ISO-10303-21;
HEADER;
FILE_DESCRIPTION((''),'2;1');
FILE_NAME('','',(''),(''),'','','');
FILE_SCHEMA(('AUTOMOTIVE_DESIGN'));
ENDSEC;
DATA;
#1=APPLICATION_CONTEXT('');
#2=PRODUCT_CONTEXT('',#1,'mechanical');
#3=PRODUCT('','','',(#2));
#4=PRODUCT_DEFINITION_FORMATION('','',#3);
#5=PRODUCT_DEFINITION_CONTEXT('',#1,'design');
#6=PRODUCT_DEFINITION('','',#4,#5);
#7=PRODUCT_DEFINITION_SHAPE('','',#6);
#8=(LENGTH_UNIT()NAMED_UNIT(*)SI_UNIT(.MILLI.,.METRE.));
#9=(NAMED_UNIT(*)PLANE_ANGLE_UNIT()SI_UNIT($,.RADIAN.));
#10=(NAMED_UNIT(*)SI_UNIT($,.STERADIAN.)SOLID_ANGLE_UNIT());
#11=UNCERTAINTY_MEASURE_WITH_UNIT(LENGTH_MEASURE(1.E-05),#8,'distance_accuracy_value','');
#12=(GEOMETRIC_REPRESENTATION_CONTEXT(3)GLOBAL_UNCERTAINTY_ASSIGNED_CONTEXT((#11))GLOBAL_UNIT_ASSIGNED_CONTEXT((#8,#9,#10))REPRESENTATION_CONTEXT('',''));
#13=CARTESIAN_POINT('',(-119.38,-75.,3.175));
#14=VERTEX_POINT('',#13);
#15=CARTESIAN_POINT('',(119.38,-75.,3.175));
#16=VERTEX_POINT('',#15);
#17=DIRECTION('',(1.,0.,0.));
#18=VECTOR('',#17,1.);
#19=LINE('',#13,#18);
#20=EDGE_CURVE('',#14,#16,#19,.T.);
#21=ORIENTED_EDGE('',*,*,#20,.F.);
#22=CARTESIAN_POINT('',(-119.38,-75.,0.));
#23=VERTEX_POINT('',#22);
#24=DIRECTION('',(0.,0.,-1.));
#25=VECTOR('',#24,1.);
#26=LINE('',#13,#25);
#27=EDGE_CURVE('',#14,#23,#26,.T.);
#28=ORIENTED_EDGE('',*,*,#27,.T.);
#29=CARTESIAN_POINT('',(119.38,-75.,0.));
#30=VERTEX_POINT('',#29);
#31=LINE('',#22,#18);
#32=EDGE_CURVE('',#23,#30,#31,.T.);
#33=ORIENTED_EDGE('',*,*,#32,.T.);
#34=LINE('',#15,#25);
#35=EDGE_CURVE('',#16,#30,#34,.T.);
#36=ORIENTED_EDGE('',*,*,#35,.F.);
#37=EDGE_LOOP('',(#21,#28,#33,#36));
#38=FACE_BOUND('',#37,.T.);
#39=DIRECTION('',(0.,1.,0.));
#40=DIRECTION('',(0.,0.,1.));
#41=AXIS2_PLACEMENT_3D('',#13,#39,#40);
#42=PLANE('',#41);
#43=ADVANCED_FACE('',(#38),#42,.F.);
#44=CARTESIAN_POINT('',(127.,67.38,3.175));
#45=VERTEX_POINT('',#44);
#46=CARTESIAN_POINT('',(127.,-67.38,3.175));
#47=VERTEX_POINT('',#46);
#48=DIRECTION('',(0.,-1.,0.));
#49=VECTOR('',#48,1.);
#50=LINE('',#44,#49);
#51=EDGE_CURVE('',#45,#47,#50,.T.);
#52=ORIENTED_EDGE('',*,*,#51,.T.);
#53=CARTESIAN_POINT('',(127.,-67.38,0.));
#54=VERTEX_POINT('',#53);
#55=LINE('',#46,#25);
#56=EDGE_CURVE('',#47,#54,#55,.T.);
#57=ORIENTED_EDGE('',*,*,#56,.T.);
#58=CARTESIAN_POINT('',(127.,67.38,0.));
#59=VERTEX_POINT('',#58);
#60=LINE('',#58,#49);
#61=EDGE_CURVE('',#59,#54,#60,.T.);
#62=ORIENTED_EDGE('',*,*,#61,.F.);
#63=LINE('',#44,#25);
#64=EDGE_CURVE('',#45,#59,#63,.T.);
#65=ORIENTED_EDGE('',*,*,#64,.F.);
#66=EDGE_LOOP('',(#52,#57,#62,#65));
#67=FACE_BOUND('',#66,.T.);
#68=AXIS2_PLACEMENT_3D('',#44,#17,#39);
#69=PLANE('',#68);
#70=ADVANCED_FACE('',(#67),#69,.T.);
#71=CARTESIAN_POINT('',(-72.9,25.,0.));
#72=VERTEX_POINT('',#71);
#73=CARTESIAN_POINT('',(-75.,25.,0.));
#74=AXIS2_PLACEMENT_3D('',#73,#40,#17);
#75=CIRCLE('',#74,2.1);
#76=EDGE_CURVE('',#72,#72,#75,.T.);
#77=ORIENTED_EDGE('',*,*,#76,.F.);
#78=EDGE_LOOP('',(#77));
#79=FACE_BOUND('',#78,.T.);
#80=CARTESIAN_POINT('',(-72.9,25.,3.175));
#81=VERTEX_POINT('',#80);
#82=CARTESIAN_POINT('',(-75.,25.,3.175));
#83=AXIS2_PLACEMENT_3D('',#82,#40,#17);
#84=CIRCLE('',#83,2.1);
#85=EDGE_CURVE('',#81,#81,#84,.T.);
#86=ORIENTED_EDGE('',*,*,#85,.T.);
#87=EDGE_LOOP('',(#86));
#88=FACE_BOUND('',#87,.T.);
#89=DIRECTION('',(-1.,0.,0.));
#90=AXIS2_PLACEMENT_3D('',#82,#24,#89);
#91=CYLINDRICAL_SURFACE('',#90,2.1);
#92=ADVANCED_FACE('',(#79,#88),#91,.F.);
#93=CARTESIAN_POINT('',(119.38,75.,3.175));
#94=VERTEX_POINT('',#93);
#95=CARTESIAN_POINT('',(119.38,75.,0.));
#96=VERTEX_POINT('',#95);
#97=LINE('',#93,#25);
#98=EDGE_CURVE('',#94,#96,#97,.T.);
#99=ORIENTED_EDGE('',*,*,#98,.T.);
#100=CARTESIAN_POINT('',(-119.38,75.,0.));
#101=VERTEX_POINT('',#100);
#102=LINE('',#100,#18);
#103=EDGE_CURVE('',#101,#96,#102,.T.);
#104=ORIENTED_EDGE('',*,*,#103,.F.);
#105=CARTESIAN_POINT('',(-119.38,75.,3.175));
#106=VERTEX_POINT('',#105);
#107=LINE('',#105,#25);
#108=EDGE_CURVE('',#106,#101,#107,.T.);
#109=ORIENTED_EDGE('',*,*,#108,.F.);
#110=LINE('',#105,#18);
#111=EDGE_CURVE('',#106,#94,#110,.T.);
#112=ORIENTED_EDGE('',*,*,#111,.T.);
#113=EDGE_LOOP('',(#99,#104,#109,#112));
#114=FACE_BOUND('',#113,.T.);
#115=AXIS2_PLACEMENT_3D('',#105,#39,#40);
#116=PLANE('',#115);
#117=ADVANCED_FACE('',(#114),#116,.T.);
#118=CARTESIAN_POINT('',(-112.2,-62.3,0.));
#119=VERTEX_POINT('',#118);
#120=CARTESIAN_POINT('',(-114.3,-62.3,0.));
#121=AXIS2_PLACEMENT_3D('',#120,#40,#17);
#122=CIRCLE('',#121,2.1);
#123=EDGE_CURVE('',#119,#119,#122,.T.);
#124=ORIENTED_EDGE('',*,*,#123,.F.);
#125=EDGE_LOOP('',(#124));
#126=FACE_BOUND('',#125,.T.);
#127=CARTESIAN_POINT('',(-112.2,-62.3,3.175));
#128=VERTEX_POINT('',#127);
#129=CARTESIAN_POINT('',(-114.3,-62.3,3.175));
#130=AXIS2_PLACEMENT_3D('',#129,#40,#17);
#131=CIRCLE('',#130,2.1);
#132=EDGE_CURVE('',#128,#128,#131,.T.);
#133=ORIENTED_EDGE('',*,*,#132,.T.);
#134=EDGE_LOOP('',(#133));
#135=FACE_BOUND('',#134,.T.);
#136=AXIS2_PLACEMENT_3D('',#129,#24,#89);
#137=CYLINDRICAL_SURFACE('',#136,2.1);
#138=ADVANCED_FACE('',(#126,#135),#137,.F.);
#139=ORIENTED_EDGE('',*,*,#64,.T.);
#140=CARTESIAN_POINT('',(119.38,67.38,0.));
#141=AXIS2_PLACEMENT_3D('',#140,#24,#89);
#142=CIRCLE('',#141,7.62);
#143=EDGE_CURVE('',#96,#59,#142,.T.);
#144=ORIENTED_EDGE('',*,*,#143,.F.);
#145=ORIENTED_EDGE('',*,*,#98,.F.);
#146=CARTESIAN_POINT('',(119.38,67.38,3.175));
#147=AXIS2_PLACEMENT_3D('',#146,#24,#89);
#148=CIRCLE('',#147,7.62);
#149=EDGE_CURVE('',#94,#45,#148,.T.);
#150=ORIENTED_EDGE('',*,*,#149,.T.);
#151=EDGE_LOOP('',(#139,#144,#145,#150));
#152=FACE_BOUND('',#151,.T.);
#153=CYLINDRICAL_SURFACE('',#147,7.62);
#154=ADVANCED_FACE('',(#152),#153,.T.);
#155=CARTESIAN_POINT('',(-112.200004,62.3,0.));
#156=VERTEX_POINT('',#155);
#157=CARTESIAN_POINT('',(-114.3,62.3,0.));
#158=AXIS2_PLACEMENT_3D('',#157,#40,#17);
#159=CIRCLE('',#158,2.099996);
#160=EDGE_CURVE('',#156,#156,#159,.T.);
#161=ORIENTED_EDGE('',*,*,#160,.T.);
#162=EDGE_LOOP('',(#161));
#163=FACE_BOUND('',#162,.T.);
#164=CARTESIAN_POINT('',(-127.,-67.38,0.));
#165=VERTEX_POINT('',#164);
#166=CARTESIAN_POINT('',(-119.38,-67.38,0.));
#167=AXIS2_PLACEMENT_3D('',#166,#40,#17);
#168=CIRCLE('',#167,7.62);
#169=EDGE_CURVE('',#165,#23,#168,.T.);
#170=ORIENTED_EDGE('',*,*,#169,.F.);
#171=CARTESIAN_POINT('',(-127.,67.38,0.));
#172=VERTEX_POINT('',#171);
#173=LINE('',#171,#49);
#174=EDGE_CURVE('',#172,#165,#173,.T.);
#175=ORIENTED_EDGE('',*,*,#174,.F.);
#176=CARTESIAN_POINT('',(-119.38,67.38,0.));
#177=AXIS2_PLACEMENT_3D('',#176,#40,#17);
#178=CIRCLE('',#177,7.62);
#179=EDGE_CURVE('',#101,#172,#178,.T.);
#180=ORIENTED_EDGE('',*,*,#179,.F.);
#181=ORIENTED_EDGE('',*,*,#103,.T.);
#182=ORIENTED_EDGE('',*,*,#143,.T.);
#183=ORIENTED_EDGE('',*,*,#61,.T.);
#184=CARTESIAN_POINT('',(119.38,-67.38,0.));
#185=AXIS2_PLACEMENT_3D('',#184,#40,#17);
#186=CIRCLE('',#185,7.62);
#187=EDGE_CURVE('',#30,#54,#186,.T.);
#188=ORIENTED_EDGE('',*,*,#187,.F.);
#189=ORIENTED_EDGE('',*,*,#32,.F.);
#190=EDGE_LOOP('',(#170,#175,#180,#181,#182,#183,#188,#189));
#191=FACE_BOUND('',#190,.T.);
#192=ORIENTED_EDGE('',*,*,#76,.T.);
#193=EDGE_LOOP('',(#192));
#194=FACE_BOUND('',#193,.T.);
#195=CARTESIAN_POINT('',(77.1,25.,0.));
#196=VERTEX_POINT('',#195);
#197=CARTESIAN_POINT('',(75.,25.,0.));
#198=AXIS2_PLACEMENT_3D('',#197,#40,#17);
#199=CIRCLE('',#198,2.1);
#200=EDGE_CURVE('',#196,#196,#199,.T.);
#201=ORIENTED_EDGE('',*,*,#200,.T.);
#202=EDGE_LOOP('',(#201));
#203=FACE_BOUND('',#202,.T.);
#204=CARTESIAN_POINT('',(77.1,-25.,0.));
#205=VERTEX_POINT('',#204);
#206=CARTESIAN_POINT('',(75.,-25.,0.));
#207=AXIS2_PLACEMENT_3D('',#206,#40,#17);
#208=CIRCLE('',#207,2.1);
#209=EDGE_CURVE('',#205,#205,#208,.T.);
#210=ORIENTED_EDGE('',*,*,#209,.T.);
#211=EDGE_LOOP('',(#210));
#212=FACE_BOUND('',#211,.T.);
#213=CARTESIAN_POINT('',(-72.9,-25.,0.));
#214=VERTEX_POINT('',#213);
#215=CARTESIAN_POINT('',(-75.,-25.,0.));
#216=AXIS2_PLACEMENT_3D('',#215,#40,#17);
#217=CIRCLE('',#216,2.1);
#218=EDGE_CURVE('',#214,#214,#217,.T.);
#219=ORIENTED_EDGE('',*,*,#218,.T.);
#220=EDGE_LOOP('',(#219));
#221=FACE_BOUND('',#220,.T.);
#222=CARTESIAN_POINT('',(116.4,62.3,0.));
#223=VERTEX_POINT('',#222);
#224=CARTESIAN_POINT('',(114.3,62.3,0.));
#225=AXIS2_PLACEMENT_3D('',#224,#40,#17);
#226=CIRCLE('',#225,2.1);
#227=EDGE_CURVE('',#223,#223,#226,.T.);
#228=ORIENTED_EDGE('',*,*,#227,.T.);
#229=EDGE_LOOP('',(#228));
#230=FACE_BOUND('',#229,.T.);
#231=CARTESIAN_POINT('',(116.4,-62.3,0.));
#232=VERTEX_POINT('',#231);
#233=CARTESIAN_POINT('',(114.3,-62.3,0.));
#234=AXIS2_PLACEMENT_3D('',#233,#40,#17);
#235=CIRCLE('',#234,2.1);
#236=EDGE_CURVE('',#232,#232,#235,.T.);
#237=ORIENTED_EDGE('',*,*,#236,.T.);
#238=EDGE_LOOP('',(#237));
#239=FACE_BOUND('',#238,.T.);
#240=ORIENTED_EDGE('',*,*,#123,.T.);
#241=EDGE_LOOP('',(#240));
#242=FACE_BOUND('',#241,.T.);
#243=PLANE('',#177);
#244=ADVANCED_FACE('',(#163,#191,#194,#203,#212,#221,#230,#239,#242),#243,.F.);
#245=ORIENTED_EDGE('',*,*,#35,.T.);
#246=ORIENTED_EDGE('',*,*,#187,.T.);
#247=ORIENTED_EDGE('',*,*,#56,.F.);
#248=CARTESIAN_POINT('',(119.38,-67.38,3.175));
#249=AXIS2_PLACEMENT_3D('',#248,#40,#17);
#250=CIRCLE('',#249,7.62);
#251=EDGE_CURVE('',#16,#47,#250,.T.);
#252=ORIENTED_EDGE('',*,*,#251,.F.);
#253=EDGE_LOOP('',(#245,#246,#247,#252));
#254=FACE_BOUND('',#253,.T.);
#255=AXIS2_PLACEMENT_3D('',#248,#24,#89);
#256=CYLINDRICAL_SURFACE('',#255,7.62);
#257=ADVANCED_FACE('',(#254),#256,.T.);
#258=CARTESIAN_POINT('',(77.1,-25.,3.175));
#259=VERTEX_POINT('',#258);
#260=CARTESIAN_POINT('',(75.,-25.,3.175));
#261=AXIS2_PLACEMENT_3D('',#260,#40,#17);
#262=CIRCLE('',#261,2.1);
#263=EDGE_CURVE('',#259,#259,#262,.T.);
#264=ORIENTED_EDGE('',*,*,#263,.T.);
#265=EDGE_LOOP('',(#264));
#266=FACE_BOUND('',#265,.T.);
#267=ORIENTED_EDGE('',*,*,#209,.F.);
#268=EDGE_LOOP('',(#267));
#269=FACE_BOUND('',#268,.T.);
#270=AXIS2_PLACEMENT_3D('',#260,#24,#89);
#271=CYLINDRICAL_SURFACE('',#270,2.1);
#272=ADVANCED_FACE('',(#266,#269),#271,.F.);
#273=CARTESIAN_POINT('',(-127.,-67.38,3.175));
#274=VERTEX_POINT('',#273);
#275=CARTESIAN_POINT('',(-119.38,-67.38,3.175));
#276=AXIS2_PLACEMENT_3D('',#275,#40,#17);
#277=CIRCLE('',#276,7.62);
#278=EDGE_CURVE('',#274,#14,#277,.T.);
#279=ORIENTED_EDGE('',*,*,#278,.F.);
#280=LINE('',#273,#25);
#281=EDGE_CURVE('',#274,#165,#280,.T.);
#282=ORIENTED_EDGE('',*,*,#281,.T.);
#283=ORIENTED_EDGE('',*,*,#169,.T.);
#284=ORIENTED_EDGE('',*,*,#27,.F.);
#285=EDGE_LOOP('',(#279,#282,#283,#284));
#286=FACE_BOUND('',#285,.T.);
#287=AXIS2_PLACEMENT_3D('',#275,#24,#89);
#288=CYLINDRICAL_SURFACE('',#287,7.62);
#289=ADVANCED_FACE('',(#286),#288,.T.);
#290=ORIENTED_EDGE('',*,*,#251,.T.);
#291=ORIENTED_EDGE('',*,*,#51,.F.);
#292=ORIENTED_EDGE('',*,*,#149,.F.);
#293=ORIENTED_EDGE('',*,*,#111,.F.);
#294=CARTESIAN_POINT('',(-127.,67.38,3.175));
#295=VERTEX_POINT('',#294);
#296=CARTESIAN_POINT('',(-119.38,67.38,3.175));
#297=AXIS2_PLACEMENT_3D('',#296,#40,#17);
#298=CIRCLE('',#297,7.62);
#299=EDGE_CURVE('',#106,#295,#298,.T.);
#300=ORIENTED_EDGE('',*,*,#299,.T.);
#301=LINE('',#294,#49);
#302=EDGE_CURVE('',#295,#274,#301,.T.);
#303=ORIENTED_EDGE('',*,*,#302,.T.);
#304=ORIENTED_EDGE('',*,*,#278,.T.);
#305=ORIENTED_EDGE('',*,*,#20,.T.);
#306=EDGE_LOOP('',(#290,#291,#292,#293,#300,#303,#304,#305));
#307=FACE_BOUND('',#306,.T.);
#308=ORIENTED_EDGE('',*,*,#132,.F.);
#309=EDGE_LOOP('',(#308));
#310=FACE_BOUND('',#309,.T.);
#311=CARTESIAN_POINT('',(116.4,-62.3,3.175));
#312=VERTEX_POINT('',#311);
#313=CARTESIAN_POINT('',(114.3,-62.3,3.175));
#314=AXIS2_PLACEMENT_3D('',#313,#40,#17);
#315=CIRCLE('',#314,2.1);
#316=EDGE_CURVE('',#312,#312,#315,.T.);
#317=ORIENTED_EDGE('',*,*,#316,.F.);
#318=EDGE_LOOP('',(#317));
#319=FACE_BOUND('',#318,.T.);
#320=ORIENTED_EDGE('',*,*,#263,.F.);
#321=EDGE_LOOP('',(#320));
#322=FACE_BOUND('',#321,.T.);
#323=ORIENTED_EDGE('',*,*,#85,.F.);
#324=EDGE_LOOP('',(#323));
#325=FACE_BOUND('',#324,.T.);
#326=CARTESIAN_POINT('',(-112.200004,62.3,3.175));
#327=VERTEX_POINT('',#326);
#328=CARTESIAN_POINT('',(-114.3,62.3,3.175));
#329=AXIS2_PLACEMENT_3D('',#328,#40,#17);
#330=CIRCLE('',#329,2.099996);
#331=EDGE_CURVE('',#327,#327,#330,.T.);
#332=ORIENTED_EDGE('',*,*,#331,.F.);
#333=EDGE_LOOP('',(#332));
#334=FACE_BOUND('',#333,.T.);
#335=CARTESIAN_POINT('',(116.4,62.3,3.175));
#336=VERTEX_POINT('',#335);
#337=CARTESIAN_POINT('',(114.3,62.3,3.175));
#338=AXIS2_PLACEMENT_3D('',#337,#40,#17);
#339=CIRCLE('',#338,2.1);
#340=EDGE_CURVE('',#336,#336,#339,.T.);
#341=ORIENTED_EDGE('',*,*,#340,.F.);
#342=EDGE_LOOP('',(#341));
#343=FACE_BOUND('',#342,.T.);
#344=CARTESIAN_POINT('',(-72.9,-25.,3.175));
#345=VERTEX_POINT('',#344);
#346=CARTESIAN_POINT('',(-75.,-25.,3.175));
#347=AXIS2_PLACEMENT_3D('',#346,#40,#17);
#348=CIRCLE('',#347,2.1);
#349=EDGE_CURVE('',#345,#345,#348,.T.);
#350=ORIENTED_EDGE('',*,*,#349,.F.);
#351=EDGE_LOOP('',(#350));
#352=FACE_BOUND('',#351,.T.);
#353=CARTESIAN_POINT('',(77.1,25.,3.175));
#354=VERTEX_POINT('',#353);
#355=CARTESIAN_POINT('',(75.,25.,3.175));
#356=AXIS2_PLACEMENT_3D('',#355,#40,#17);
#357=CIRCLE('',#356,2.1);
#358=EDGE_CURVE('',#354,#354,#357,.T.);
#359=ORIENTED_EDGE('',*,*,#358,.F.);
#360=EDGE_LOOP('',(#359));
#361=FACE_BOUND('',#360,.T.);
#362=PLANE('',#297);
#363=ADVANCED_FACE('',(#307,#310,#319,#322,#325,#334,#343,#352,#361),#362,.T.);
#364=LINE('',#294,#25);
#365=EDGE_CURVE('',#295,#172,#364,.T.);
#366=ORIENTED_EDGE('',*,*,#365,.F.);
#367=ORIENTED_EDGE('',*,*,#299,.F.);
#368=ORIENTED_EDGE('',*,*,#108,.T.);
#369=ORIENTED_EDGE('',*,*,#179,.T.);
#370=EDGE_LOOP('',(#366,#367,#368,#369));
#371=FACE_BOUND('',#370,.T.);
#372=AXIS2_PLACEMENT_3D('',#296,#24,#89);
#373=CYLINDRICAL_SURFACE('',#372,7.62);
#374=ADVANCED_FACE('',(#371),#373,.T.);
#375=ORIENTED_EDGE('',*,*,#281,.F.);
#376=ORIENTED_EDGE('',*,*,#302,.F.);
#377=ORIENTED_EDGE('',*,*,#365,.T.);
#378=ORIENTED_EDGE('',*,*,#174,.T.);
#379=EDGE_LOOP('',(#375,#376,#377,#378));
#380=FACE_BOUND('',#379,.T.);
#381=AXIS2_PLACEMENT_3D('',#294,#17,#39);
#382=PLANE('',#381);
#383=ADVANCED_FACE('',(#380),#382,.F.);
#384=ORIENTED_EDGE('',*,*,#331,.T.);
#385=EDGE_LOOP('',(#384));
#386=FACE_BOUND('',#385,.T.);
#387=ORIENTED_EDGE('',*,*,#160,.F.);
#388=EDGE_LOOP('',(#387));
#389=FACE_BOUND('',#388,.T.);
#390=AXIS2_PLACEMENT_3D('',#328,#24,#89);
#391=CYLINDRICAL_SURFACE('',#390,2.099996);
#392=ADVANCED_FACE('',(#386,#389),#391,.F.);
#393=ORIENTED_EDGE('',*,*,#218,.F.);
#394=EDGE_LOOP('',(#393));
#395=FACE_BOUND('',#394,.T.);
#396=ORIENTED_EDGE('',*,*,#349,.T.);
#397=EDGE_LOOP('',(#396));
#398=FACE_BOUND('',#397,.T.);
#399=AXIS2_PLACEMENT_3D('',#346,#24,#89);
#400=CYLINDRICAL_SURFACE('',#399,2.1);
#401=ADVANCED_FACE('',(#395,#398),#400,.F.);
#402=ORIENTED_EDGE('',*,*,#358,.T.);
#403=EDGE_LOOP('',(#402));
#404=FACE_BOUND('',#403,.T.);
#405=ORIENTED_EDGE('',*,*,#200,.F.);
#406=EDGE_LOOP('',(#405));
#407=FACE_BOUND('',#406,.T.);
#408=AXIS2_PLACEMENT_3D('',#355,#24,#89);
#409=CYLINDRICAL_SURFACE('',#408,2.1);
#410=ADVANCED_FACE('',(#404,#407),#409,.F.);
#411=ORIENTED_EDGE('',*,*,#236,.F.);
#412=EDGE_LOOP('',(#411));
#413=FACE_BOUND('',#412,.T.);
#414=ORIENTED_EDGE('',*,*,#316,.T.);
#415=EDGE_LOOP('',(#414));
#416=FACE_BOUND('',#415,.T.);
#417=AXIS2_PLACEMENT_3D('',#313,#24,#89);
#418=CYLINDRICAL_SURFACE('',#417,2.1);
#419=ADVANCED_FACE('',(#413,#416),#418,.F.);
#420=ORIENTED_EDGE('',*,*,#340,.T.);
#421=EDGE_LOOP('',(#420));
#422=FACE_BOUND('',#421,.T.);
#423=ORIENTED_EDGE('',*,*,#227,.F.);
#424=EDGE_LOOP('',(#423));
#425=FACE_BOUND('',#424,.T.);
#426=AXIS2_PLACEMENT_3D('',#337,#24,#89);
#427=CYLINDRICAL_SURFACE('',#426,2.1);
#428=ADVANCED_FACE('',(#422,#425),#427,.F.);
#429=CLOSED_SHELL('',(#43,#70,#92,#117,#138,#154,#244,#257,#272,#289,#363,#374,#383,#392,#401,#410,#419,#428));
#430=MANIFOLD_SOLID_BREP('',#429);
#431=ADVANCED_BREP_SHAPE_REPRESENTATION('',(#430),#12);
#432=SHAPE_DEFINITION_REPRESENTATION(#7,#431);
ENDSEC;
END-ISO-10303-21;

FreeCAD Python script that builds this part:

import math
import FreeCAD as App
import Part
import Sketcher
Q = App.Units.Quantity

doc = App.newDocument("Part")
body = doc.addObject("PartDesign::Body", "Body")

sketch1 = body.newObject("Sketcher::SketchObject", "Sketch")
sketch1.AttachmentSupport = (doc.getObject("XY_Plane"), [""])
sketch1.MapMode = "FlatFace"
sketch1.addGeometry([
    Part.LineSegment(App.Vector(119.38, 75, 0), App.Vector(-119.38, 75, 0)),
    Part.ArcOfCircle(Part.Circle(App.Vector(-119.38, 67.38, 0), App.Vector(0, 0, 1), 7.62), math.radians(90), math.radians(180)),
    Part.LineSegment(App.Vector(-127, 67.38, 0), App.Vector(-127, -67.38, 0)),
    Part.ArcOfCircle(Part.Circle(App.Vector(-119.38, -67.38, 0), App.Vector(0, 0, 1), 7.62), math.radians(180), math.radians(270)),
    Part.LineSegment(App.Vector(-119.38, -75, 0), App.Vector(119.38, -75, 0)),
    Part.ArcOfCircle(Part.Circle(App.Vector(119.38, -67.38, 0), App.Vector(0, 0, 1), 7.62), math.radians(-90), math.radians(0)),
    Part.LineSegment(App.Vector(127, -67.38, 0), App.Vector(127, 67.38, 0)),
    Part.ArcOfCircle(Part.Circle(App.Vector(119.38, 67.38, 0), App.Vector(0, 0, 1), 7.62), math.radians(0), math.radians(90)),
    Part.Circle(App.Vector(114.3, -62.3, 0), App.Vector(0, 0, 1), 2.1),
    Part.Circle(App.Vector(75, -25, 0), App.Vector(0, 0, 1), 2.1),
    Part.Circle(App.Vector(-114.3, -62.3, 0), App.Vector(0, 0, 1), 2.1),
    Part.Circle(App.Vector(-75, -25, 0), App.Vector(0, 0, 1), 2.1),
    Part.Circle(App.Vector(75, 25, 0), App.Vector(0, 0, 1), 2.1),
    Part.Circle(App.Vector(114.3, 62.3, 0), App.Vector(0, 0, 1), 2.1),
    Part.Circle(App.Vector(-75, 25, 0), App.Vector(0, 0, 1), 2.1),
    Part.Circle(App.Vector(-114.3, 62.3, 0), App.Vector(0, 0, 1), 2.099996),
], False)
sketch1.addConstraint([
    Sketcher.Constraint("Tangent", 0, 2, 1, 1),
    Sketcher.Constraint("Tangent", 1, 2, 2, 1),
    Sketcher.Constraint("Tangent", 2, 2, 3, 1),
    Sketcher.Constraint("Tangent", 3, 2, 4, 1),
    Sketcher.Constraint("Tangent", 4, 2, 5, 1),
    Sketcher.Constraint("Tangent", 5, 2, 6, 1),
    Sketcher.Constraint("Tangent", 6, 2, 7, 1),
    Sketcher.Constraint("Tangent", 7, 2, 0, 1),
    Sketcher.Constraint("Horizontal", 0),
    Sketcher.Constraint("Vertical", 2),
    Sketcher.Constraint("Horizontal", 4),
    Sketcher.Constraint("Vertical", 6),
    Sketcher.Constraint("Equal", 1, 3),
    Sketcher.Constraint("Equal", 3, 5),
    Sketcher.Constraint("Equal", 5, 7),
    Sketcher.Constraint("Equal", 8, 9),
    Sketcher.Constraint("Equal", 9, 10),
    Sketcher.Constraint("Equal", 10, 11),
    Sketcher.Constraint("Equal", 11, 12),
    Sketcher.Constraint("Equal", 12, 13),
    Sketcher.Constraint("Equal", 13, 14),
    Sketcher.Constraint("Symmetric", 1, 3, 5, 3, -1, 1),
    Sketcher.Constraint("Symmetric", 11, 3, 12, 3, -1, 1),
    Sketcher.Constraint("Symmetric", 10, 3, 13, 3, -1, 1),
    Sketcher.Constraint("Symmetric", 9, 3, 14, 3, -1, 1),
    Sketcher.Constraint("Symmetric", 8, 3, 15, 3, -1, 1),
    Sketcher.Constraint("Symmetric", 8, 3, 10, 3, -2),
    Sketcher.Constraint("Symmetric", 9, 3, 11, 3, -2),
    Sketcher.Constraint("Radius", 1, Q("0.3 in")),
    Sketcher.Constraint("DistanceX", 0, 2, 0, 1, Q("9.4 in")),
    Sketcher.Constraint("DistanceX", 10, 3, 8, 3, Q("9 in")),
    Sketcher.Constraint("DistanceY", 5, 3, 8, 3, Q("0.2 in")),
    Sketcher.Constraint("Diameter", 8, Q("4.2 mm")),
    Sketcher.Constraint("Diameter", 15, Q("4.199992 mm")),
    Sketcher.Constraint("DistanceY", 2, 2, 2, 1, Q("134.76 mm")),
    Sketcher.Constraint("DistanceX", -1, 1, 9, 3, Q("75 mm")),
    Sketcher.Constraint("DistanceY", 9, 3, -1, 1, Q("25 mm")),
])
pad1 = body.newObject("PartDesign::Pad", "Pad")
pad1.Profile = sketch1
pad1.Length = Q("0.125 in")

doc.recompute()
